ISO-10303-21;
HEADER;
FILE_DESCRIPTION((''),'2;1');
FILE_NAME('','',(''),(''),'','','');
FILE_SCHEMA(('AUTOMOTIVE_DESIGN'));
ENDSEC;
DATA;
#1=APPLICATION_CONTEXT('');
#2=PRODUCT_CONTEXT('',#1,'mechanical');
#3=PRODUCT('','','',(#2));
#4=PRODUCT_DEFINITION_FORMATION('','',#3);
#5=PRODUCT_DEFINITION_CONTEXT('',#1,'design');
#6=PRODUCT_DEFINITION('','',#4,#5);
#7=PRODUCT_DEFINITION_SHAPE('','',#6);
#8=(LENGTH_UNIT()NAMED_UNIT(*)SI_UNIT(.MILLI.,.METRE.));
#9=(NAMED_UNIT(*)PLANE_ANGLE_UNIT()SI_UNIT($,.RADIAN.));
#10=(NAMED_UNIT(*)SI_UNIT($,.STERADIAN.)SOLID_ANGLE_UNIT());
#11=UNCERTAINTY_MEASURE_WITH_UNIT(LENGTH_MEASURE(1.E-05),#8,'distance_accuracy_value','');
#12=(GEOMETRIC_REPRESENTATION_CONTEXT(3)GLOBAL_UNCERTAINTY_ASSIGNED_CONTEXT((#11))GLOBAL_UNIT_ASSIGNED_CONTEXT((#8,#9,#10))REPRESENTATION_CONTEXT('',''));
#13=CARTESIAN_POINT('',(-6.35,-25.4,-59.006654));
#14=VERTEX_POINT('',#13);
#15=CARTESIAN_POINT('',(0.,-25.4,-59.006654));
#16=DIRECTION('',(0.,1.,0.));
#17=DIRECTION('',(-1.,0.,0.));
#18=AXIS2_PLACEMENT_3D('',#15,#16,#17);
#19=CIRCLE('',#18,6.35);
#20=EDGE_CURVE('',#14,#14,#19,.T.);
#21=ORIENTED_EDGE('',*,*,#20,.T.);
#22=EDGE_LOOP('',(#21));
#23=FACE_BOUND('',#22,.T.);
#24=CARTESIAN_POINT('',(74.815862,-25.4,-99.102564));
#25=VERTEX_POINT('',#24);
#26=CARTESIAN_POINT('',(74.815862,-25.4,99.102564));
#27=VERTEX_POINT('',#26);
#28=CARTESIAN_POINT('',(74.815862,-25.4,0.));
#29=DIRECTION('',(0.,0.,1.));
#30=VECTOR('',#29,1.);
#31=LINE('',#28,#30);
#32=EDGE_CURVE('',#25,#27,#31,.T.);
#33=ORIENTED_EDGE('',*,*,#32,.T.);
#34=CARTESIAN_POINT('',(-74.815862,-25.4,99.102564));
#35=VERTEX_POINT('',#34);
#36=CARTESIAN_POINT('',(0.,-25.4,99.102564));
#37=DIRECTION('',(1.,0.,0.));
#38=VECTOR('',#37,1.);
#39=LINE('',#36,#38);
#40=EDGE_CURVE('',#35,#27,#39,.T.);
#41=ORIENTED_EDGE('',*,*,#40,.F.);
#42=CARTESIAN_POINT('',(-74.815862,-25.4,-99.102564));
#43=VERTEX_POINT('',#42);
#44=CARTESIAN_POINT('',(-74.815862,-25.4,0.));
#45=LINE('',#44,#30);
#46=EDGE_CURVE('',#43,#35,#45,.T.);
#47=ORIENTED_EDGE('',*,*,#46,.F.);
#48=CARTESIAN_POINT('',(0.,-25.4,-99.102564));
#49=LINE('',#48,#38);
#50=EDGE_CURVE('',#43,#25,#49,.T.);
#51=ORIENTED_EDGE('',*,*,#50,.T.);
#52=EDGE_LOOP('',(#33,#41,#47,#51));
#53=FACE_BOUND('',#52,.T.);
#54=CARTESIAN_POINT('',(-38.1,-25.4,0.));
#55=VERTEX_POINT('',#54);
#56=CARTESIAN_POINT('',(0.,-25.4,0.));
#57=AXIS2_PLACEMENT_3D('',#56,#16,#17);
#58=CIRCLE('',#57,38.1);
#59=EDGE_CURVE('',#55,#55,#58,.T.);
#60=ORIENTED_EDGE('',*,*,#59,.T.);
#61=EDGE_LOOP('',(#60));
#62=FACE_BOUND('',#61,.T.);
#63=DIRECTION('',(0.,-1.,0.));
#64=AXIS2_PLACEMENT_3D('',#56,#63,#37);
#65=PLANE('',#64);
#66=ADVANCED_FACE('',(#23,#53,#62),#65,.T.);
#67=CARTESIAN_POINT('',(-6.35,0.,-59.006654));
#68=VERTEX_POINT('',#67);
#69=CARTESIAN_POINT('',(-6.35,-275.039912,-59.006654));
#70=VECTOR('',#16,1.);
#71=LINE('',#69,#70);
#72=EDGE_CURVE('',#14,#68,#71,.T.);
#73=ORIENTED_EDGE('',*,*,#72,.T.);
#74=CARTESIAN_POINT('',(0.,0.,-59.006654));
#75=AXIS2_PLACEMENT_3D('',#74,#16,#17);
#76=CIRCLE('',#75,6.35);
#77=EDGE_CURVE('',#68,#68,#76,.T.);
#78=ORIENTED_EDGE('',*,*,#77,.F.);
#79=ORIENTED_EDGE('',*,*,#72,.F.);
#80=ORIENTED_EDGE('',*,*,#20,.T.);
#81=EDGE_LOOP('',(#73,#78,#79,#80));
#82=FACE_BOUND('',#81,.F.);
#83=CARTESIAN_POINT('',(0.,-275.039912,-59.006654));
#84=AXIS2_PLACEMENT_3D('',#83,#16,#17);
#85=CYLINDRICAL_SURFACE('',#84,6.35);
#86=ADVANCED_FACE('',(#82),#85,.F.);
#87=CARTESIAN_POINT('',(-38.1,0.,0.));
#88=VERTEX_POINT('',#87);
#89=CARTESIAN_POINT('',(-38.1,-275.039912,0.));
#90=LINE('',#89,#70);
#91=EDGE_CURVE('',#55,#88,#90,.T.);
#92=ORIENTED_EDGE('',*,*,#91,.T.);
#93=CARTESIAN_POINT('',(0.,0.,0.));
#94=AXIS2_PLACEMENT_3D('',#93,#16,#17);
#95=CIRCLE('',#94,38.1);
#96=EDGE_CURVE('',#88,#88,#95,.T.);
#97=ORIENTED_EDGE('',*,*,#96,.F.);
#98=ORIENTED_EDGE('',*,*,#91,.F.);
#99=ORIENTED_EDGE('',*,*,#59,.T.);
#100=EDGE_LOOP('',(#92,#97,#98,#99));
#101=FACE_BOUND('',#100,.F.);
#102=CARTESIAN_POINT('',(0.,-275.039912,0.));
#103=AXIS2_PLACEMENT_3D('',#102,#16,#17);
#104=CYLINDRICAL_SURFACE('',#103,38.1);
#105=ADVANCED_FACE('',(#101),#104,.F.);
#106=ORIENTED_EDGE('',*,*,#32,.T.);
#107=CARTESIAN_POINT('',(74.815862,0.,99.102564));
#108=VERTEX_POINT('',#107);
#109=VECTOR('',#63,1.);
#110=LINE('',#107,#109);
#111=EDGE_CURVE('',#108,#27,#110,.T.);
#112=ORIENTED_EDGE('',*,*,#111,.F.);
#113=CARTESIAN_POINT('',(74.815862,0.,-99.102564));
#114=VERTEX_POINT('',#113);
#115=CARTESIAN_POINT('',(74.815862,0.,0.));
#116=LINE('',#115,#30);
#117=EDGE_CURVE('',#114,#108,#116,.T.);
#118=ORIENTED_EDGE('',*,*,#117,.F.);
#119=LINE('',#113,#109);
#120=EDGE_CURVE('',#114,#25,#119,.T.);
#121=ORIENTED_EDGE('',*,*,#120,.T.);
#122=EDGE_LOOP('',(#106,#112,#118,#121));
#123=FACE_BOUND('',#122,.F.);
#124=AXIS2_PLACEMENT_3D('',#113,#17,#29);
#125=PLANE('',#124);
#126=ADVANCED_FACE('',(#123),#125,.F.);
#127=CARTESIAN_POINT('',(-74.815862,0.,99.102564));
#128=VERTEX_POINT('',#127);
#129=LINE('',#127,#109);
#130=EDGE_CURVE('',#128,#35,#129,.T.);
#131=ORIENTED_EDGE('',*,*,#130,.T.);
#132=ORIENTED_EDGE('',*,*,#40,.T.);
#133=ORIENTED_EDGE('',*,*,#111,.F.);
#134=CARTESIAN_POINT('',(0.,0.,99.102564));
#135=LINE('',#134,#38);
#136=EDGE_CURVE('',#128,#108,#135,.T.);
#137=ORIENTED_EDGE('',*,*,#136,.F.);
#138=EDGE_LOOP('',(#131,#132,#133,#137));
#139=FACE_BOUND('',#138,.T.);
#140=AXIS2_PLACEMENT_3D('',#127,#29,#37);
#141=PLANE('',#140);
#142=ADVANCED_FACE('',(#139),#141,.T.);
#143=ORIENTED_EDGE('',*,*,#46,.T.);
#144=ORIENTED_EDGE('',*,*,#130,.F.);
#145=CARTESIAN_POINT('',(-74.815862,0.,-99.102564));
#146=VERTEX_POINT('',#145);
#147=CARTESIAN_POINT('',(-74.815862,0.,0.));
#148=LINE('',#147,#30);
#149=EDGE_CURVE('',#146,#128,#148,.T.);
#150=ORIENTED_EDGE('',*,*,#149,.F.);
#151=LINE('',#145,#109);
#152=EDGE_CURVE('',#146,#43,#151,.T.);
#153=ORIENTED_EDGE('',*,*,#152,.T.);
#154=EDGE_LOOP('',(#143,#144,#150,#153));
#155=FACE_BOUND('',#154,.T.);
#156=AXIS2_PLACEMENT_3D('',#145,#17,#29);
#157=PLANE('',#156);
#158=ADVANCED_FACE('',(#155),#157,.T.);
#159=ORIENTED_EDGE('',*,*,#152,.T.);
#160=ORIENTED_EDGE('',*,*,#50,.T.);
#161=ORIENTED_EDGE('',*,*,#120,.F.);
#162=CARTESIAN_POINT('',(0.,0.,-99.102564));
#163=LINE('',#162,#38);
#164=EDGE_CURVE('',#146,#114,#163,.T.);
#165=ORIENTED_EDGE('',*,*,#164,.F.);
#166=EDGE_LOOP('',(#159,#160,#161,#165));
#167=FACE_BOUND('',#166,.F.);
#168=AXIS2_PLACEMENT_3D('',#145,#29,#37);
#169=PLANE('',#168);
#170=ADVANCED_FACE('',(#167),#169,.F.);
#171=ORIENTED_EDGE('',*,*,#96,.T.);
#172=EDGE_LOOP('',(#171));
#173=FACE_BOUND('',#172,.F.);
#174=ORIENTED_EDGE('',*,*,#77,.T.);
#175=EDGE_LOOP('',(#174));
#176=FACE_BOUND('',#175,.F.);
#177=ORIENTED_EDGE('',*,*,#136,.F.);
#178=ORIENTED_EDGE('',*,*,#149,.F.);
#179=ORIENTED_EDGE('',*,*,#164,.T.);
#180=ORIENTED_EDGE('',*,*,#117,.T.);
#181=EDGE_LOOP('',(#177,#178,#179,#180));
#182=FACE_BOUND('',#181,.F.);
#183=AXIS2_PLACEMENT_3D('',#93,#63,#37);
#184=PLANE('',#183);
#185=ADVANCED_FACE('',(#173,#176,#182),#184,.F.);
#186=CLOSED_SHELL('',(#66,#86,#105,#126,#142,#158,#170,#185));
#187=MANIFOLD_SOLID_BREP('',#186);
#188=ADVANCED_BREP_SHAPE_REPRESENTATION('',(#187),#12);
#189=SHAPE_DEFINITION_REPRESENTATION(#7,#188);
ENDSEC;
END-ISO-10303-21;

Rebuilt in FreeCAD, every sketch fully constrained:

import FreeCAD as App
import Part
import Sketcher

V = App.Vector
Q = App.Units.Quantity


def add_polygon(sketch, points):
    """Adds a closed chain of lines whose ends are joined by coincident constraints."""
    first, n = sketch.GeometryCount, len(points)
    for a, b in zip(points, points[1:] + points[:1]):
        sketch.addGeometry(Part.LineSegment(App.Vector(*a, 0), App.Vector(*b, 0)), False)
    for i in range(n):
        sketch.addConstraint(Sketcher.Constraint("Coincident", first + i, 2, first + (i + 1) % n, 1))

doc = App.newDocument("Part")
body = doc.addObject("PartDesign::Body", "Body")

sketch1 = doc.addObject("Sketcher::SketchObject", "Sketch")
body.addObject(sketch1)
sketch1.AttachmentSupport = (doc.XZ_Plane, [""])
sketch1.MapMode = "FlatFace"
add_polygon(sketch1, [(-75, 99), (-75, -99), (75, -99), (75, 99)])
sketch1.addConstraint([
    Sketcher.Constraint("Vertical", 0),
    Sketcher.Constraint("Horizontal", 1),
    Sketcher.Constraint("Vertical", 2),
    Sketcher.Constraint("Horizontal", 3),
    Sketcher.Constraint("Symmetric", 0, 2, 2, 2, -1, 1),
    Sketcher.Constraint("DistanceY", 0, 2, 0, 1, Q("198.205128 mm")),
    Sketcher.Constraint("DistanceX", 1, 1, 1, 2, Q("149.631724 mm")),
])
pad1 = doc.addObject("PartDesign::Pad", "Pad")
body.addObject(pad1)
pad1.Profile = sketch1
pad1.Length = Q("1 in")

sketch2 = doc.addObject("Sketcher::SketchObject", "Sketch001")
body.addObject(sketch2)
sketch2.AttachmentSupport = (doc.XZ_Plane, [""])
sketch2.MapMode = "FlatFace"
sketch2.AttachmentOffset = App.Placement(V(0, 0, 1 * 25.4), App.Rotation())
sketch2.addGeometry(Part.Circle(V(0, 0, 0), V(0, 0, 1), 38), False)
sketch2.addConstraint([
    Sketcher.Constraint("Coincident", 0, 3, -1, 1),
    Sketcher.Constraint("Diameter", 0, Q("3 in")),
])
doc.recompute()
hole = doc.addObject("PartDesign::Hole", "Hole")
body.addObject(hole)
hole.Profile = sketch2
hole.ThreadType = "None"
hole.Diameter = Q("3 in")
hole.DepthType = "ThroughAll"

sketch3 = doc.addObject("Sketcher::SketchObject", "Sketch002")
body.addObject(sketch3)
sketch3.AttachmentSupport = (doc.XZ_Plane, [""])
sketch3.MapMode = "FlatFace"
sketch3.AttachmentOffset = App.Placement(V(0, 0, 1 * 25.4), App.Rotation())
sketch3.addGeometry(Part.Circle(V(0, -59, 0), V(0, 0, 1), 6), False)
sketch3.addConstraint([
    Sketcher.Constraint("PointOnObject", 0, 3, -2),
    Sketcher.Constraint("Diameter", 0, Q("0.5 in")),
    Sketcher.Constraint("DistanceY", 0, 3, -1, 1, Q("59.006654 mm")),
])
doc.recompute()
hole2 = doc.addObject("PartDesign::Hole", "Hole001")
body.addObject(hole2)
hole2.Profile = sketch3
hole2.ThreadType = "None"
hole2.Diameter = Q("0.5 in")
hole2.DepthType = "ThroughAll"

doc.recompute()
